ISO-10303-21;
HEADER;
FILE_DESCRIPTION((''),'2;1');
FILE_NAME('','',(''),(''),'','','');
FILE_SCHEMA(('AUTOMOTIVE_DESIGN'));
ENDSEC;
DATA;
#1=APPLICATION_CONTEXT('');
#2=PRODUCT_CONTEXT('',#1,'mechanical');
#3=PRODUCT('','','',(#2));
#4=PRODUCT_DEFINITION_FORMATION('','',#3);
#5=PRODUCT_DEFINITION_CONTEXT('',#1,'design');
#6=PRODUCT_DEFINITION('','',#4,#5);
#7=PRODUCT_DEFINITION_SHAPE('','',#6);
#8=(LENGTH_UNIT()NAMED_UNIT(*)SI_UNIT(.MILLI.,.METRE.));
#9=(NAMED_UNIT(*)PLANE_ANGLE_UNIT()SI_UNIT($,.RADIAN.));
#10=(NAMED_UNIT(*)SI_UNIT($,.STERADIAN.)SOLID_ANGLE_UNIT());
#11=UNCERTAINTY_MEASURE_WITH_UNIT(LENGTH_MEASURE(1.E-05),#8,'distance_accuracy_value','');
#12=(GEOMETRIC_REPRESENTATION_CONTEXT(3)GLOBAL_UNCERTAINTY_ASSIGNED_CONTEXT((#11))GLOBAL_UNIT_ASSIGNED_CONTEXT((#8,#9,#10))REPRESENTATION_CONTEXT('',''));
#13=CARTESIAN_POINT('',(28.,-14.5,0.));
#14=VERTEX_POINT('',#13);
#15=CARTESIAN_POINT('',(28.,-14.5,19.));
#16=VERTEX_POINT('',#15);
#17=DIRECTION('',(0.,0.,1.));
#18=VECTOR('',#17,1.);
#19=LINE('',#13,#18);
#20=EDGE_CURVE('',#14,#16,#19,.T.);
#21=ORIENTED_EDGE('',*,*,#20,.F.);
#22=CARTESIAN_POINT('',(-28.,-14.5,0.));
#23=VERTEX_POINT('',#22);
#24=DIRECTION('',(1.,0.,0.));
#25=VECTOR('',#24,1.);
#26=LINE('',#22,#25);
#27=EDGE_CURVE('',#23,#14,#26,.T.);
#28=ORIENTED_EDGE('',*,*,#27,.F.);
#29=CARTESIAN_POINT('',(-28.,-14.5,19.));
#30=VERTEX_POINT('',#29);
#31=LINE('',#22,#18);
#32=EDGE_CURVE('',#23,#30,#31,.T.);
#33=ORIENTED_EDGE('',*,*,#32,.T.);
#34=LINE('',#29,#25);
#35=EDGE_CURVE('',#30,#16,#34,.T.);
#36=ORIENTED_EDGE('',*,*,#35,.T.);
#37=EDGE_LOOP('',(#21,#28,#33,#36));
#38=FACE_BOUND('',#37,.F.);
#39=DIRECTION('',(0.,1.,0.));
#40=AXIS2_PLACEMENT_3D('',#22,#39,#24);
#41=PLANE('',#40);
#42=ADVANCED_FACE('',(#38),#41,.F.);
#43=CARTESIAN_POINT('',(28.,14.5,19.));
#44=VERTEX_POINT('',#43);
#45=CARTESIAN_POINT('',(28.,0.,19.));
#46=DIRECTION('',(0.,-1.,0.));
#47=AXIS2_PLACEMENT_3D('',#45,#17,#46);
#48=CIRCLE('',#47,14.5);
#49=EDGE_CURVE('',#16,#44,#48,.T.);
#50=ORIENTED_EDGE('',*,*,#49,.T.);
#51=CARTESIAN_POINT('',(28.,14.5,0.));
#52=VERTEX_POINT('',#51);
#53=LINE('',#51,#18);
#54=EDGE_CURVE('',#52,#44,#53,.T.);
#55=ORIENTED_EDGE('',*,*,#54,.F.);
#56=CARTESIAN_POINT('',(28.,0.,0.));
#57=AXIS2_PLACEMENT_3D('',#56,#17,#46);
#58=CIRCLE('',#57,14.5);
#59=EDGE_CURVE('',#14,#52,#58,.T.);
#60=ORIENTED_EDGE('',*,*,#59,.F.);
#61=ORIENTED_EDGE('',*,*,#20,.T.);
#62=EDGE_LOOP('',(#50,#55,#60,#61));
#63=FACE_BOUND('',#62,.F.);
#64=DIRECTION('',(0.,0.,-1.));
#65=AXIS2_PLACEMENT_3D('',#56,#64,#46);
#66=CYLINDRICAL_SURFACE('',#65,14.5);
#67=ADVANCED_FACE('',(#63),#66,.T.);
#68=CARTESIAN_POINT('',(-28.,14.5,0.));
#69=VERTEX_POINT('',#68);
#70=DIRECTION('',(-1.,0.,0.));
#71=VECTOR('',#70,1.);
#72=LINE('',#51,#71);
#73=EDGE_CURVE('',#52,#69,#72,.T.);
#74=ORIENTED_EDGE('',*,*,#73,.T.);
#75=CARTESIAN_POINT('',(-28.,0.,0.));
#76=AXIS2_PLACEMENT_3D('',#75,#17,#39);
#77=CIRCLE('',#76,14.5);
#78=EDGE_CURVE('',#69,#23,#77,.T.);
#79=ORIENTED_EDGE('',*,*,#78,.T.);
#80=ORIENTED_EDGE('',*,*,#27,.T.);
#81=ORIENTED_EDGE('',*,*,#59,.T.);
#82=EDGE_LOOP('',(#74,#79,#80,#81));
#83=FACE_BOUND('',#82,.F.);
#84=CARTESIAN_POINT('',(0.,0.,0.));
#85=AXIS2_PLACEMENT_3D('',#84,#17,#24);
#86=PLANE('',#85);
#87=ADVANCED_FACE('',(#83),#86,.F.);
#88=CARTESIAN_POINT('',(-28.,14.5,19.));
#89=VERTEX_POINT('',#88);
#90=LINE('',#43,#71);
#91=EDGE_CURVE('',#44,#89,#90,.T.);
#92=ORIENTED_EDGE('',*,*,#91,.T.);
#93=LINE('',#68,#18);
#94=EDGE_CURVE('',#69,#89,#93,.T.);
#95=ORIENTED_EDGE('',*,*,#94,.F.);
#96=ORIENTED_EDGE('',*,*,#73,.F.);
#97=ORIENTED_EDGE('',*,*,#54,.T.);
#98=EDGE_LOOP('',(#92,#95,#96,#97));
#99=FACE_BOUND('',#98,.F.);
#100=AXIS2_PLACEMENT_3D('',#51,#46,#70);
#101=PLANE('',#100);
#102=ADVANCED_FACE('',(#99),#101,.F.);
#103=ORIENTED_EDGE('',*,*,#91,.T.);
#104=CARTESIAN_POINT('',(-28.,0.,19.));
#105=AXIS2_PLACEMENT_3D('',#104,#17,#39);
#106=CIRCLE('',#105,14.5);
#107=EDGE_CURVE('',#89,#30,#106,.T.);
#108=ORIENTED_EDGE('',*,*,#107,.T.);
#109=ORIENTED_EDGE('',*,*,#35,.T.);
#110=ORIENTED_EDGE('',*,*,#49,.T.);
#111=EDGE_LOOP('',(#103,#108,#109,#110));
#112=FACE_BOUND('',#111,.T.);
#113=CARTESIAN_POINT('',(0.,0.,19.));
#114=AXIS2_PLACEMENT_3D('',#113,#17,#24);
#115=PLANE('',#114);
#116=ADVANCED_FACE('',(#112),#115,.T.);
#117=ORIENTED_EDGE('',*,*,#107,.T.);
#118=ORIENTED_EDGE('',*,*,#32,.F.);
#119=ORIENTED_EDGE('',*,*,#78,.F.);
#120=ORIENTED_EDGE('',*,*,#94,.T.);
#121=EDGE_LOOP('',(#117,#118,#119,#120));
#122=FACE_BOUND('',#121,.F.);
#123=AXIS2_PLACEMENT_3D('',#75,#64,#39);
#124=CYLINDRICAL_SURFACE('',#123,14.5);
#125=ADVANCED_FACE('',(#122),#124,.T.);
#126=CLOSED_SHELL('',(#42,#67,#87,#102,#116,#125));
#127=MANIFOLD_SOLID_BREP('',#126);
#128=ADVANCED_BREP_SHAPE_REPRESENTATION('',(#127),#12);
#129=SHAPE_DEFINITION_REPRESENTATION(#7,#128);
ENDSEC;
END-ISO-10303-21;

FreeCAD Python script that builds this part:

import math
import FreeCAD as App
import Part
import Sketcher

doc = App.newDocument("Part")
body = doc.addObject("PartDesign::Body", "Body")

sketch1 = body.newObject("Sketcher::SketchObject", "Sketch")
sketch1.AttachmentSupport = (doc.getObject("XY_Plane"), [""])
sketch1.MapMode = "FlatFace"
sketch1.addGeometry([
    Part.ArcOfCircle(Part.Circle(App.Vector(-28, 0, 0), App.Vector(0, 0, 1), 14), math.radians(90), math.radians(270)),
    Part.LineSegment(App.Vector(-28, -14, 0), App.Vector(28, -14, 0)),
    Part.ArcOfCircle(Part.Circle(App.Vector(28, 0, 0), App.Vector(0, 0, 1), 14), math.radians(-90), math.radians(90)),
    Part.LineSegment(App.Vector(28, 14, 0), App.Vector(-28, 14, 0)),
], False)
sketch1.addConstraint([
    Sketcher.Constraint("Tangent", 0, 2, 1, 1),
    Sketcher.Constraint("Tangent", 1, 2, 2, 1),
    Sketcher.Constraint("Tangent", 2, 2, 3, 1),
    Sketcher.Constraint("Tangent", 3, 2, 0, 1),
    Sketcher.Constraint("Horizontal", 1),
    Sketcher.Constraint("Horizontal", 3),
    Sketcher.Constraint("Symmetric", 0, 3, 2, 3, -1, 1),
    Sketcher.Constraint("Radius", 0, 14.5),
    Sketcher.Constraint("DistanceX", 1, 1, 1, 2, 56.0),
])
pad1 = body.newObject("PartDesign::Pad", "Pad")
pad1.Profile = sketch1
pad1.Length = 19

doc.recompute()
